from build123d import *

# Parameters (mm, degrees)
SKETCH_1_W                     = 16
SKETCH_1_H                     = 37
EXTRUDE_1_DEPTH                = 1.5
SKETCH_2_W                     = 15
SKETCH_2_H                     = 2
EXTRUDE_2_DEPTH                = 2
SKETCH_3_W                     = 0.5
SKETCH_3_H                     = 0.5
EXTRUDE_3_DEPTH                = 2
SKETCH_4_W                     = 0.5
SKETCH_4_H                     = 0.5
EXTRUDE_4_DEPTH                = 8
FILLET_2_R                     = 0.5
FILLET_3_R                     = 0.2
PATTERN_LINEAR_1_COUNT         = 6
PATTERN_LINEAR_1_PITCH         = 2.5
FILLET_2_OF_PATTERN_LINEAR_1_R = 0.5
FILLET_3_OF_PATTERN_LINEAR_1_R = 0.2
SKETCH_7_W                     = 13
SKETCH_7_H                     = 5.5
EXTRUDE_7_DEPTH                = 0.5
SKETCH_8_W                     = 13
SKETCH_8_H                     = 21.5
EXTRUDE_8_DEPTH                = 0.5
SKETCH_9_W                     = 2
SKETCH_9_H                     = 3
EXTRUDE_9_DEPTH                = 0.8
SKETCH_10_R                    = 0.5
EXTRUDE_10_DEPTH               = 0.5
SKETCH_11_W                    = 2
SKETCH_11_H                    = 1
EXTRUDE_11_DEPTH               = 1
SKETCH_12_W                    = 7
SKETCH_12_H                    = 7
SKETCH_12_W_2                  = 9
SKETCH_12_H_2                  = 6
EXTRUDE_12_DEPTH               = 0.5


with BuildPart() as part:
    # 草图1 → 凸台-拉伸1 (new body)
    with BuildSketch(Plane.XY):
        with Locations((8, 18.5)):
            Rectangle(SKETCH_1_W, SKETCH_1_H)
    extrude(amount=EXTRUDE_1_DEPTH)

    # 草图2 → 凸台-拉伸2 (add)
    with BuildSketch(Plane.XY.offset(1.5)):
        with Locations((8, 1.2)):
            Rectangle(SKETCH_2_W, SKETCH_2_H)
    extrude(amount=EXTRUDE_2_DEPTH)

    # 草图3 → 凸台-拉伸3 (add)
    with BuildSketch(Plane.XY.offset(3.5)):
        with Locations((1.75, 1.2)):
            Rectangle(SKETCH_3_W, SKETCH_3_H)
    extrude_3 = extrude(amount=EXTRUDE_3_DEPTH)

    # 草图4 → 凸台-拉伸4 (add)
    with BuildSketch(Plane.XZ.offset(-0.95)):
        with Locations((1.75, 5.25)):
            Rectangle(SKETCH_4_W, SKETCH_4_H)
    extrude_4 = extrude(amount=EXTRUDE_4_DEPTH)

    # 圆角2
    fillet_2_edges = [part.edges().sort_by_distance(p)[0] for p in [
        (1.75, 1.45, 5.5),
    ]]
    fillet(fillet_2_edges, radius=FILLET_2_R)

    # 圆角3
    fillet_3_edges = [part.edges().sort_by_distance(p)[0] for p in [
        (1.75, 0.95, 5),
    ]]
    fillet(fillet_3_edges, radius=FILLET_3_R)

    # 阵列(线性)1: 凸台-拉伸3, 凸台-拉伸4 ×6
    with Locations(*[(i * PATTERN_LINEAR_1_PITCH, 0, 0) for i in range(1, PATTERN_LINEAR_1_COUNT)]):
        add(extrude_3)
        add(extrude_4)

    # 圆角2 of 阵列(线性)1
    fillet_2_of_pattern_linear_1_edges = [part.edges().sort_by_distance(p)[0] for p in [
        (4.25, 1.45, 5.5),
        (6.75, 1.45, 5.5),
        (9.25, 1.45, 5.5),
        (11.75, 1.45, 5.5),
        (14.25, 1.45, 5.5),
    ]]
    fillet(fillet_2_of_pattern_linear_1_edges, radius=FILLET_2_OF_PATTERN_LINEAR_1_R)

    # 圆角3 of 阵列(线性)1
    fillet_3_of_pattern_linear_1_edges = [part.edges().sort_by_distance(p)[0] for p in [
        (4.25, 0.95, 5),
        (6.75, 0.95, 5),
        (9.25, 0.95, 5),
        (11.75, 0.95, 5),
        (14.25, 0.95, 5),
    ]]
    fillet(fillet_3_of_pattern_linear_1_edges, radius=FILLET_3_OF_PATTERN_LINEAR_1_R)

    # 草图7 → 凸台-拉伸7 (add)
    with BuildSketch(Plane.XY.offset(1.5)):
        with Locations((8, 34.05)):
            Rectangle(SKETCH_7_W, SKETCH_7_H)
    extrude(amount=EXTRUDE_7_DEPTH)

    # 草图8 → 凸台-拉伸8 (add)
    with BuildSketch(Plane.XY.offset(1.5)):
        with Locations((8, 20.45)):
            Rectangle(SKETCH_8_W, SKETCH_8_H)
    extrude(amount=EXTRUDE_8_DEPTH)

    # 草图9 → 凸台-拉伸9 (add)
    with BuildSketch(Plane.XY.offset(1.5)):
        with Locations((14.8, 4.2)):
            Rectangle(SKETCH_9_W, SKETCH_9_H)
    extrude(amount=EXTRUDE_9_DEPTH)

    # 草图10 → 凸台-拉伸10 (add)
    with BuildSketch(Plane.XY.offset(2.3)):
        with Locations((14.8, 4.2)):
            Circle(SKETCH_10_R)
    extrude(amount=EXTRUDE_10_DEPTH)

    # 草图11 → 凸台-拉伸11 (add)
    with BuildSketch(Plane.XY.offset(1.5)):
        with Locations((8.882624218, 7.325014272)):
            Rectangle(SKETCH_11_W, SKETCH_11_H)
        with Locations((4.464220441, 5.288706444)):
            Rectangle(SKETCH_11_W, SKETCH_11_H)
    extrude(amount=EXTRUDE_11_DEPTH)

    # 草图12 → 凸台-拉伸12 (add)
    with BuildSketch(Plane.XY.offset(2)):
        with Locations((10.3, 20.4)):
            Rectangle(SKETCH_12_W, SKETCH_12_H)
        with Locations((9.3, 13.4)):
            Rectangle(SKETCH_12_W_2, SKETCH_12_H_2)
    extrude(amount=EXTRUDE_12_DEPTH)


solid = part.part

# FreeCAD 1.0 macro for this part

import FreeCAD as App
import Part
import Sketcher
Q = App.Units.Quantity


def edges_at(feature, points):
    """Names of the edges that pass closest to the given points."""
    edges = feature.Shape.Edges
    near = lambda p: min(range(len(edges)), key=lambda i: edges[i].distToShape(Part.Vertex(*p))[0])
    return sorted({f"Edge{near(p) + 1}" for p in points})


def add_polygon(sketch, points):
    """Adds a closed chain of lines whose ends are joined by coincident constraints."""
    first, n = sketch.GeometryCount, len(points)
    for a, b in zip(points, points[1:] + points[:1]):
        sketch.addGeometry(Part.LineSegment(App.Vector(*a, 0), App.Vector(*b, 0)), False)
    for i in range(n):
        sketch.addConstraint(Sketcher.Constraint("Coincident", first + i, 2, first + (i + 1) % n, 1))

doc = App.newDocument("Part")
body = doc.addObject("PartDesign::Body", "Body")

# Sketch on XY plane
sketch1 = body.newObject("Sketcher::SketchObject", "Sketch")
sketch1.AttachmentSupport = (doc.getObject("XY_Plane"), [""])
sketch1.MapMode = "FlatFace"
add_polygon(sketch1, [(0, 37), (0, 0), (16, 0), (16, 37)])  # lines 0-3
sketch1.addConstraint(Sketcher.Constraint("Vertical", 0))
sketch1.addConstraint(Sketcher.Constraint("Horizontal", 1))
sketch1.addConstraint(Sketcher.Constraint("Vertical", 2))
sketch1.addConstraint(Sketcher.Constraint("Horizontal", 3))
sketch1.addConstraint(Sketcher.Constraint("Coincident", 0, 2, -1, 1))
sketch1.addConstraint(Sketcher.Constraint("DistanceX", 1, 1, 1, 2, Q("16 mm")))
sketch1.addConstraint(Sketcher.Constraint("DistanceY", 0, 2, 0, 1, Q("37 mm")))
pad1 = body.newObject("PartDesign::Pad", "Pad")
pad1.Profile = sketch1
pad1.Length = 1.5

# Sketch on XY plane
sketch2 = body.newObject("Sketcher::SketchObject", "Sketch001")
sketch2.AttachmentSupport = (doc.getObject("XY_Plane"), [""])
sketch2.MapMode = "FlatFace"
sketch2.AttachmentOffset = App.Placement(App.Vector(0, 0, 1.5), App.Rotation())
add_polygon(sketch2, [(0.5, 2.2), (0.5, 0.2), (15.5, 0.2), (15.5, 2.2)])  # lines 0-3
sketch2.addConstraint(Sketcher.Constraint("Vertical", 0))
sketch2.addConstraint(Sketcher.Constraint("Horizontal", 1))
sketch2.addConstraint(Sketcher.Constraint("Vertical", 2))
sketch2.addConstraint(Sketcher.Constraint("Horizontal", 3))
sketch2.addConstraint(Sketcher.Constraint("DistanceX", 1, 1, 1, 2, Q("15 mm")))
sketch2.addConstraint(Sketcher.Constraint("DistanceY", 0, 2, 0, 1, Q("2 mm")))
sketch2.addConstraint(Sketcher.Constraint("DistanceX", -1, 1, 0, 2, Q("0.5 mm")))
sketch2.addConstraint(Sketcher.Constraint("DistanceY", -1, 1, 0, 2, Q("0.2 mm")))
pad2 = body.newObject("PartDesign::Pad", "Pad001")
pad2.Profile = sketch2
pad2.Length = 2

# Sketch on XY plane
sketch3 = body.newObject("Sketcher::SketchObject", "Sketch002")
sketch3.AttachmentSupport = (doc.getObject("XY_Plane"), [""])
sketch3.MapMode = "FlatFace"
sketch3.AttachmentOffset = App.Placement(App.Vector(0, 0, 3.5), App.Rotation())
add_polygon(sketch3, [(1.5, 1.4), (1.5, 0.9), (2, 0.9), (2, 1.4)])  # lines 0-3
sketch3.addConstraint(Sketcher.Constraint("Vertical", 0))
sketch3.addConstraint(Sketcher.Constraint("Horizontal", 1))
sketch3.addConstraint(Sketcher.Constraint("Vertical", 2))
sketch3.addConstraint(Sketcher.Constraint("Horizontal", 3))
sketch3.addConstraint(Sketcher.Constraint("Equal", 3, 0))
sketch3.addConstraint(Sketcher.Constraint("DistanceX", 1, 1, 1, 2, Q("0.5 mm")))
sketch3.addConstraint(Sketcher.Constraint("DistanceX", -1, 1, 1, 2, Q("2 mm")))
sketch3.addConstraint(Sketcher.Constraint("DistanceY", -1, 1, 0, 2, Q("0.95 mm")))
pad3 = body.newObject("PartDesign::Pad", "Pad002")
pad3.Profile = sketch3
pad3.Length = 2

# Sketch on XZ plane
sketch4 = body.newObject("Sketcher::SketchObject", "Sketch003")
sketch4.AttachmentSupport = (doc.getObject("XZ_Plane"), [""])
sketch4.MapMode = "FlatFace"
sketch4.AttachmentOffset = App.Placement(App.Vector(0, 0, -0.95), App.Rotation())
add_polygon(sketch4, [(1.5, 5.5), (1.5, 5), (2, 5), (2, 5.5)])  # lines 0-3
sketch4.addConstraint(Sketcher.Constraint("Vertical", 0))
sketch4.addConstraint(Sketcher.Constraint("Horizontal", 1))
sketch4.addConstraint(Sketcher.Constraint("Vertical", 2))
sketch4.addConstraint(Sketcher.Constraint("Horizontal", 3))
sketch4.addConstraint(Sketcher.Constraint("Equal", 3, 0))
sketch4.addConstraint(Sketcher.Constraint("DistanceX", 1, 1, 1, 2, Q("0.5 mm")))
sketch4.addConstraint(Sketcher.Constraint("DistanceY", -1, 1, 0, 2, Q("5 mm")))
sketch4.addConstraint(Sketcher.Constraint("DistanceX", -1, 1, 1, 2, Q("2 mm")))
pad4 = body.newObject("PartDesign::Pad", "Pad003")
pad4.Profile = sketch4
pad4.Length = 8
doc.recompute()

fillet = body.newObject("PartDesign::Fillet", "Fillet")
fillet.Base = (pad4, edges_at(pad4, [(1.75, 1.45, 5.5)]))
fillet.Radius = 0.5
doc.recompute()

fillet2 = body.newObject("PartDesign::Fillet", "Fillet001")
fillet2.Base = (fillet, edges_at(fillet, [(1.75, 0.95, 5)]))
fillet2.Radius = 0.2
doc.recompute()

linearpattern = body.newObject("PartDesign::LinearPattern", "LinearPattern")
linearpattern.Originals = [pad3, pad4]
linearpattern.Direction = (doc.getObject("X_Axis"), [""])
linearpattern.Mode = "offset"
linearpattern.Offset = 2.5
linearpattern.Occurrences = 6
body.Tip = linearpattern
doc.recompute()

fillet3 = body.newObject("PartDesign::Fillet", "Fillet002")
fillet3.Base = (linearpattern, edges_at(linearpattern, [
    (4.25, 1.45, 5.5),
    (6.75, 1.45, 5.5),
    (9.25, 1.45, 5.5),
    (11.75, 1.45, 5.5),
    (14.25, 1.45, 5.5),
]))
fillet3.Radius = 0.5
doc.recompute()

fillet4 = body.newObject("PartDesign::Fillet", "Fillet003")
fillet4.Base = (fillet3, edges_at(fillet3, [
    (4.25, 0.95, 5),
    (6.75, 0.95, 5),
    (9.25, 0.95, 5),
    (11.75, 0.95, 5),
    (14.25, 0.95, 5),
]))
fillet4.Radius = 0.2

# Sketch on XY plane
sketch5 = body.newObject("Sketcher::SketchObject", "Sketch004")
sketch5.AttachmentSupport = (doc.getObject("XY_Plane"), [""])
sketch5.MapMode = "FlatFace"
sketch5.AttachmentOffset = App.Placement(App.Vector(0, 0, 1.5), App.Rotation())
add_polygon(sketch5, [(2, 37), (2, 31), (14, 31), (14, 37)])  # lines 0-3
sketch5.addConstraint(Sketcher.Constraint("Vertical", 0))
sketch5.addConstraint(Sketcher.Constraint("Horizontal", 1))
sketch5.addConstraint(Sketcher.Constraint("Vertical", 2))
sketch5.addConstraint(Sketcher.Constraint("Horizontal", 3))
sketch5.addConstraint(Sketcher.Constraint("DistanceX", 1, 1, 1, 2, Q("13 mm")))
sketch5.addConstraint(Sketcher.Constraint("DistanceY", 0, 2, 0, 1, Q("5.5 mm")))
sketch5.addConstraint(Sketcher.Constraint("DistanceX", -1, 1, 0, 2, Q("1.5 mm")))
sketch5.addConstraint(Sketcher.Constraint("DistanceY", -1, 1, 0, 2, Q("31.3 mm")))
pad5 = body.newObject("PartDesign::Pad", "Pad004")
pad5.Profile = sketch5
pad5.Length = 0.5

# Sketch on XY plane
sketch6 = body.newObject("Sketcher::SketchObject", "Sketch005")
sketch6.AttachmentSupport = (doc.getObject("XY_Plane"), [""])
sketch6.MapMode = "FlatFace"
sketch6.AttachmentOffset = App.Placement(App.Vector(0, 0, 1.5), App.Rotation())
add_polygon(sketch6, [(2, 31), (2, 10), (14, 10), (14, 31)])  # lines 0-3
sketch6.addConstraint(Sketcher.Constraint("Vertical", 0))
sketch6.addConstraint(Sketcher.Constraint("Horizontal", 1))
sketch6.addConstraint(Sketcher.Constraint("Vertical", 2))
sketch6.addConstraint(Sketcher.Constraint("Horizontal", 3))
sketch6.addConstraint(Sketcher.Constraint("DistanceX", 1, 1, 1, 2, Q("13 mm")))
sketch6.addConstraint(Sketcher.Constraint("DistanceY", 0, 2, 0, 1, Q("21.5 mm")))
sketch6.addConstraint(Sketcher.Constraint("DistanceX", -1, 1, 0, 2, Q("1.5 mm")))
sketch6.addConstraint(Sketcher.Constraint("DistanceY", -1, 1, 0, 2, Q("9.7 mm")))
pad6 = body.newObject("PartDesign::Pad", "Pad005")
pad6.Profile = sketch6
pad6.Length = 0.5

# Sketch on XY plane
sketch7 = body.newObject("Sketcher::SketchObject", "Sketch006")
sketch7.AttachmentSupport = (doc.getObject("XY_Plane"), [""])
sketch7.MapMode = "FlatFace"
sketch7.AttachmentOffset = App.Placement(App.Vector(0, 0, 1.5), App.Rotation())
add_polygon(sketch7, [(13.8, 5.7), (13.8, 2.7), (15.8, 2.7), (15.8, 5.7)])  # lines 0-3
sketch7.addConstraint(Sketcher.Constraint("Vertical", 0))
sketch7.addConstraint(Sketcher.Constraint("Horizontal", 1))
sketch7.addConstraint(Sketcher.Constraint("Vertical", 2))
sketch7.addConstraint(Sketcher.Constraint("Horizontal", 3))
sketch7.addConstraint(Sketcher.Constraint("DistanceX", 1, 1, 1, 2, Q("2 mm")))
sketch7.addConstraint(Sketcher.Constraint("DistanceY", 0, 2, 0, 1, Q("3 mm")))
sketch7.addConstraint(Sketcher.Constraint("DistanceX", -1, 1, 0, 2, Q("13.8 mm")))
sketch7.addConstraint(Sketcher.Constraint("DistanceY", -1, 1, 0, 2, Q("2.7 mm")))
pad7 = body.newObject("PartDesign::Pad", "Pad006")
pad7.Profile = sketch7
pad7.Length = 0.8

# Sketch on XY plane
sketch8 = body.newObject("Sketcher::SketchObject", "Sketch007")
sketch8.AttachmentSupport = (doc.getObject("XY_Plane"), [""])
sketch8.MapMode = "FlatFace"
sketch8.AttachmentOffset = App.Placement(App.Vector(0, 0, 2.3), App.Rotation())
sketch8.addGeometry(Part.Circle(App.Vector(14.8, 4.2, 0), App.Vector(0, 0, 1), 0.5), False)
sketch8.addConstraint(Sketcher.Constraint("Diameter", 0, Q("1 mm")))
sketch8.addConstraint(Sketcher.Constraint("DistanceX", -1, 1, 0, 3, Q("14.8 mm")))
sketch8.addConstraint(Sketcher.Constraint("DistanceY", -1, 1, 0, 3, Q("4.2 mm")))
pad8 = body.newObject("PartDesign::Pad", "Pad007")
pad8.Profile = sketch8
pad8.Length = 0.5

# Sketch on XY plane
sketch9 = body.newObject("Sketcher::SketchObject", "Sketch008")
sketch9.AttachmentSupport = (doc.getObject("XY_Plane"), [""])
sketch9.MapMode = "FlatFace"
sketch9.AttachmentOffset = App.Placement(App.Vector(0, 0, 1.5), App.Rotation())
add_polygon(sketch9, [(7.9, 7.8), (7.9, 6.8), (9.9, 6.8), (9.9, 7.8)])  # lines 0-3
add_polygon(sketch9, [(3.5, 5.8), (3.5, 4.8), (5.5, 4.8), (5.5, 5.8)])  # lines 4-7
sketch9.addConstraint(Sketcher.Constraint("Vertical", 0))
sketch9.addConstraint(Sketcher.Constraint("Horizontal", 1))
sketch9.addConstraint(Sketcher.Constraint("Vertical", 2))
sketch9.addConstraint(Sketcher.Constraint("Horizontal", 3))
sketch9.addConstraint(Sketcher.Constraint("Vertical", 4))
sketch9.addConstraint(Sketcher.Constraint("Horizontal", 5))
sketch9.addConstraint(Sketcher.Constraint("Vertical", 6))
sketch9.addConstraint(Sketcher.Constraint("Horizontal", 7))
sketch9.addConstraint(Sketcher.Constraint("Equal", 3, 5))
sketch9.addConstraint(Sketcher.Constraint("Equal", 2, 4))
sketch9.addConstraint(Sketcher.Constraint("DistanceX", 1, 1, 1, 2, Q("2 mm")))
sketch9.addConstraint(Sketcher.Constraint("DistanceY", 0, 2, 0, 1, Q("1 mm")))
sketch9.addConstraint(Sketcher.Constraint("DistanceX", -1, 1, 4, 2, Q("3.46422 mm")))
sketch9.addConstraint(Sketcher.Constraint("DistanceX", -1, 1, 0, 2, Q("7.882624 mm")))
sketch9.addConstraint(Sketcher.Constraint("DistanceY", -1, 1, 0, 2, Q("6.825014 mm")))
sketch9.addConstraint(Sketcher.Constraint("DistanceY", -1, 1, 4, 2, Q("4.788706 mm")))
pad9 = body.newObject("PartDesign::Pad", "Pad008")
pad9.Profile = sketch9
pad9.Length = 1

# Sketch on XY plane
sketch10 = body.newObject("Sketcher::SketchObject", "Sketch009")
sketch10.AttachmentSupport = (doc.getObject("XY_Plane"), [""])
sketch10.MapMode = "FlatFace"
sketch10.AttachmentOffset = App.Placement(App.Vector(0, 0, 2), App.Rotation())
add_polygon(sketch10, [(7, 24), (7, 17), (14, 17), (14, 24)])  # lines 0-3
add_polygon(sketch10, [(5, 16), (5, 10), (14, 10), (14, 16)])  # lines 4-7
sketch10.addConstraint(Sketcher.Constraint("Vertical", 0))
sketch10.addConstraint(Sketcher.Constraint("Horizontal", 1))
sketch10.addConstraint(Sketcher.Constraint("Vertical", 2))
sketch10.addConstraint(Sketcher.Constraint("Horizontal", 3))
sketch10.addConstraint(Sketcher.Constraint("Vertical", 4))
sketch10.addConstraint(Sketcher.Constraint("Horizontal", 5))
sketch10.addConstraint(Sketcher.Constraint("Vertical", 6))
sketch10.addConstraint(Sketcher.Constraint("Horizontal", 7))
sketch10.addConstraint(Sketcher.Constraint("Vertical", 2, 2, 5, 2))
sketch10.addConstraint(Sketcher.Constraint("Equal", 3, 0))
sketch10.addConstraint(Sketcher.Constraint("DistanceX", 1, 1, 1, 2, Q("7 mm")))
sketch10.addConstraint(Sketcher.Constraint("DistanceX", 5, 1, 5, 2, Q("9 mm")))
sketch10.addConstraint(Sketcher.Constraint("DistanceY", 4, 2, 4, 1, Q("6 mm")))
sketch10.addConstraint(Sketcher.Constraint("DistanceX", -1, 1, 0, 2, Q("6.8 mm")))
sketch10.addConstraint(Sketcher.Constraint("DistanceY", -1, 1, 0, 2, Q("16.9 mm")))
sketch10.addConstraint(Sketcher.Constraint("DistanceY", -1, 1, 4, 2, Q("10.4 mm")))
pad10 = body.newObject("PartDesign::Pad", "Pad009")
pad10.Profile = sketch10
pad10.Length = 0.5

doc.recompute()
